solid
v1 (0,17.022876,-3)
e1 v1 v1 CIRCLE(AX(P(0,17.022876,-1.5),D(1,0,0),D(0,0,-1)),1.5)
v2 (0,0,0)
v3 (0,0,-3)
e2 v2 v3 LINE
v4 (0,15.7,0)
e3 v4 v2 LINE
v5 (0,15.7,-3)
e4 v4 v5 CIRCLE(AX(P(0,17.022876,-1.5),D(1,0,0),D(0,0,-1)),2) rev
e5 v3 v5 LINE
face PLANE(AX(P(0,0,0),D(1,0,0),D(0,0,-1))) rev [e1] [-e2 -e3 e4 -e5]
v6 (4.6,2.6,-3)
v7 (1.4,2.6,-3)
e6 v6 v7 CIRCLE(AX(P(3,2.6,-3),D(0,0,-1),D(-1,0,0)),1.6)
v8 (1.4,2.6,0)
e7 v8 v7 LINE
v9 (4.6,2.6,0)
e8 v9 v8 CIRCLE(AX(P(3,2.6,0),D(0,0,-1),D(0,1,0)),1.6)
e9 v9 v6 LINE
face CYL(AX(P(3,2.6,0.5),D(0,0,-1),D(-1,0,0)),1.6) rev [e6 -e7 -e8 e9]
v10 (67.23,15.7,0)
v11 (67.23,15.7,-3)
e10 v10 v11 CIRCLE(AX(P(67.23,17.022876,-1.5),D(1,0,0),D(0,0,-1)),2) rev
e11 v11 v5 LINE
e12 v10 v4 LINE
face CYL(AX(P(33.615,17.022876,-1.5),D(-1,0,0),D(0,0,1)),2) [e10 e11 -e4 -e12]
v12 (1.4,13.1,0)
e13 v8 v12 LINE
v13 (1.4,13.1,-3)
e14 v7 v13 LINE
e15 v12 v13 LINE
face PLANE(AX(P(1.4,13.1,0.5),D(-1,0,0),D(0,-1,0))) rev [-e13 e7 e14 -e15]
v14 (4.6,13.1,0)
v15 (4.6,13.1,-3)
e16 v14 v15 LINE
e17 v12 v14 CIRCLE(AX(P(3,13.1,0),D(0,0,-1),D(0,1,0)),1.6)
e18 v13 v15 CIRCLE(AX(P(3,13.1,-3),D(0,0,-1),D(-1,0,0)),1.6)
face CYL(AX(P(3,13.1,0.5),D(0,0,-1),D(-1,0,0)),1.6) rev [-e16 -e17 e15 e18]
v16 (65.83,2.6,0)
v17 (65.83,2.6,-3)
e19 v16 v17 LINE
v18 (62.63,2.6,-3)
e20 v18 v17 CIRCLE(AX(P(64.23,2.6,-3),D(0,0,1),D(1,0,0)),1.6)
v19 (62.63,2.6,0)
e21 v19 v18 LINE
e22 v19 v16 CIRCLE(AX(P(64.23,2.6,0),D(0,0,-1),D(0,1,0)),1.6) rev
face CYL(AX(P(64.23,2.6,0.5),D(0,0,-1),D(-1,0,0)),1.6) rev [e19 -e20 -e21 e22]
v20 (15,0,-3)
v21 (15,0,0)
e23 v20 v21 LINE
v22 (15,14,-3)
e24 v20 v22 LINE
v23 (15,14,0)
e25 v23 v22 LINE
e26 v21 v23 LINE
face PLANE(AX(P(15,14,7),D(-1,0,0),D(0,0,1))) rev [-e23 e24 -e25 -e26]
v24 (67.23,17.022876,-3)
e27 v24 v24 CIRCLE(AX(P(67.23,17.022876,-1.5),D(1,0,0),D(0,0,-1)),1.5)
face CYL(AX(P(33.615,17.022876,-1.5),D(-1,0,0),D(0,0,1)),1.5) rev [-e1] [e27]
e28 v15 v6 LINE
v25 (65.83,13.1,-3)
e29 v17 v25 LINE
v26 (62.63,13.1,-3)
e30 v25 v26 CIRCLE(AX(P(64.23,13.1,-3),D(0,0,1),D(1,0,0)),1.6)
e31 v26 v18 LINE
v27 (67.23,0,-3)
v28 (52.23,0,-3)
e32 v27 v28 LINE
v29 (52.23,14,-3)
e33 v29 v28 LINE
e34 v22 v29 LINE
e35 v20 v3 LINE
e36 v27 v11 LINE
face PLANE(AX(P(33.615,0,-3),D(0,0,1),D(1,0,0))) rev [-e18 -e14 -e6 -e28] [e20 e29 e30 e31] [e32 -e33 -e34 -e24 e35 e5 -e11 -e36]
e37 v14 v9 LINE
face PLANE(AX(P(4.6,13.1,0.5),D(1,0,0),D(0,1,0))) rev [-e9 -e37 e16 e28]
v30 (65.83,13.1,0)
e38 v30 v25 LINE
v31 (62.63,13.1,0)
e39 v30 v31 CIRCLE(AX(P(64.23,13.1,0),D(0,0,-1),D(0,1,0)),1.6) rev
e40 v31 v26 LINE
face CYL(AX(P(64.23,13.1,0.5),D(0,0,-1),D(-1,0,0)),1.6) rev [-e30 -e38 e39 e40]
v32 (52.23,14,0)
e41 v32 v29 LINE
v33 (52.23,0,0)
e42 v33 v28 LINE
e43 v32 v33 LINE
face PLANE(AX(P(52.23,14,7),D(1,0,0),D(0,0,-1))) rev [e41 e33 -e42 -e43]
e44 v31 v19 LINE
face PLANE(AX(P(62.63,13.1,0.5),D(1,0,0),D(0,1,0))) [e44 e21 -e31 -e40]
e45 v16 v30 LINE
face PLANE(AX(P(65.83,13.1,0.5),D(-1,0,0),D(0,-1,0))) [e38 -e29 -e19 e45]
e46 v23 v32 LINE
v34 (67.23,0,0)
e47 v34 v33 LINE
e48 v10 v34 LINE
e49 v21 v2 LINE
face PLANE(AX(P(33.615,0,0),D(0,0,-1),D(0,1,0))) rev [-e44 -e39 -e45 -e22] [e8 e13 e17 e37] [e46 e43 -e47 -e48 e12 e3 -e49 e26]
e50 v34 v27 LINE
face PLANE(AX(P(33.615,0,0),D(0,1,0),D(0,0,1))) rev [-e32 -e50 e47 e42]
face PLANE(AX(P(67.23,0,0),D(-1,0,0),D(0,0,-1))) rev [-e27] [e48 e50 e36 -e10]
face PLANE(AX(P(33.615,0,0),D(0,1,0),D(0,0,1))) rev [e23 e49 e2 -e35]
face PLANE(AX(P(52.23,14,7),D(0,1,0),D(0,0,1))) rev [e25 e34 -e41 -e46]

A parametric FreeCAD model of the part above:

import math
import FreeCAD as App
import Part
import Sketcher

V = App.Vector


def add_polygon(sketch, points):
    """Adds a closed chain of lines whose ends are joined by coincident constraints."""
    first, n = sketch.GeometryCount, len(points)
    for a, b in zip(points, points[1:] + points[:1]):
        sketch.addGeometry(Part.LineSegment(App.Vector(*a, 0), App.Vector(*b, 0)), False)
    for i in range(n):
        sketch.addConstraint(Sketcher.Constraint("Coincident", first + i, 2, first + (i + 1) % n, 1))

doc = App.newDocument("Part")
body = doc.addObject("PartDesign::Body", "Body")

# Sketch on YZ plane
sketch1 = body.newObject("Sketcher::SketchObject", "Sketch")
sketch1.AttachmentSupport = (doc.getObject("YZ_Plane"), [""])
sketch1.MapMode = "FlatFace"
sketch1.addGeometry(Part.ArcOfCircle(Part.Circle(V(17.022876, -1.5, 0), V(0, 0, 1), 2), math.radians(-131.409622), math.radians(131.409622)), False)
sketch1.addGeometry(Part.LineSegment(V(15.7, 0, 0), V(0, 0, 0)), False)
sketch1.addGeometry(Part.LineSegment(V(0, 0, 0), V(0, -3, 0)), False)
sketch1.addGeometry(Part.LineSegment(V(0, -3, 0), V(15.7, -3, 0)), False)
sketch1.addGeometry(Part.Circle(V(17.022876, -1.5, 0), V(0, 0, 1), 1.5), False)
sketch1.addConstraint(Sketcher.Constraint("Coincident", 0, 2, 1, 1))
sketch1.addConstraint(Sketcher.Constraint("Coincident", 1, 2, 2, 1))
sketch1.addConstraint(Sketcher.Constraint("Coincident", 2, 2, 3, 1))
sketch1.addConstraint(Sketcher.Constraint("Coincident", 3, 2, 0, 1))
sketch1.addConstraint(Sketcher.Constraint("Horizontal", 1))
sketch1.addConstraint(Sketcher.Constraint("Vertical", 2))
sketch1.addConstraint(Sketcher.Constraint("Horizontal", 3))
sketch1.addConstraint(Sketcher.Constraint("Coincident", 1, 2, -1, 1))
sketch1.addConstraint(Sketcher.Constraint("Coincident", 4, 3, 0, 3))
sketch1.addConstraint(Sketcher.Constraint("Vertical", 0, 2, 3, 2))
sketch1.addConstraint(Sketcher.Constraint("Diameter", 4, 3.0))
sketch1.addConstraint(Sketcher.Constraint("Radius", 0, 2.0))
sketch1.addConstraint(Sketcher.Constraint("DistanceY", 2, 2, 2, 1, 3.0))
sketch1.addConstraint(Sketcher.Constraint("DistanceX", 1, 2, 1, 1, 15.7))
pad1 = body.newObject("PartDesign::Pad", "Pad")
pad1.Profile = sketch1
pad1.Length = 33.615

# Sketch on XY plane
sketch2 = body.newObject("Sketcher::SketchObject", "Sketch001")
sketch2.AttachmentSupport = (doc.getObject("XY_Plane"), [""])
sketch2.MapMode = "FlatFace"
sketch2.AttachmentOffset = App.Placement(V(0, 0, -3), App.Rotation())
sketch2.addGeometry(Part.LineSegment(V(1.4, 2.6, 0), V(1.4, 13.1, 0)), False)
sketch2.addGeometry(Part.ArcOfCircle(Part.Circle(V(3, 13.1, 0), V(0, 0, 1), 1.6), math.radians(0), math.radians(180)), False)
sketch2.addGeometry(Part.LineSegment(V(4.6, 13.1, 0), V(4.6, 2.6, 0)), False)
sketch2.addGeometry(Part.ArcOfCircle(Part.Circle(V(3, 2.6, 0), V(0, 0, 1), 1.6), math.radians(180), math.radians(360)), False)
sketch2.addConstraint(Sketcher.Constraint("Tangent", 0, 2, 1, 2))
sketch2.addConstraint(Sketcher.Constraint("Tangent", 1, 1, 2, 1))
sketch2.addConstraint(Sketcher.Constraint("Tangent", 2, 2, 3, 2))
sketch2.addConstraint(Sketcher.Constraint("Tangent", 3, 1, 0, 1))
sketch2.addConstraint(Sketcher.Constraint("Vertical", 0))
sketch2.addConstraint(Sketcher.Constraint("Vertical", 2))
sketch2.addConstraint(Sketcher.Constraint("Radius", 1, 1.6))
sketch2.addConstraint(Sketcher.Constraint("DistanceY", 0, 1, 0, 2, 10.5))
sketch2.addConstraint(Sketcher.Constraint("DistanceX", -1, 1, 1, 3, 3.0))
sketch2.addConstraint(Sketcher.Constraint("DistanceY", -1, 1, 1, 3, 13.1))
pocket1 = body.newObject("PartDesign::Pocket", "Pocket")
pocket1.Profile = sketch2
pocket1.Type = "ThroughAll"
pocket1.Reversed = True
doc.recompute()

datumplane = body.newObject("PartDesign::Plane", "DatumPlane")
datumplane.AttachmentSupport = (doc.getObject("YZ_Plane"), [""])
datumplane.MapMode = "FlatFace"
datumplane.AttachmentOffset = App.Placement(V(0, 0, 33.615), App.Rotation())
mirrored = body.newObject("PartDesign::Mirrored", "Mirrored")
mirrored.Originals = [pad1, pocket1]
mirrored.MirrorPlane = (datumplane, [""])
body.Tip = mirrored

# Sketch on XY plane
sketch3 = body.newObject("Sketcher::SketchObject", "Sketch002")
sketch3.AttachmentSupport = (doc.getObject("XY_Plane"), [""])
sketch3.MapMode = "FlatFace"
sketch3.AttachmentOffset = App.Placement(V(0, 0, -3), App.Rotation())
add_polygon(sketch3, [(52.23, 14), (52.23, 0), (15, 0), (15, 14)])  # lines 0-3
sketch3.addConstraint(Sketcher.Constraint("Vertical", 0))
sketch3.addConstraint(Sketcher.Constraint("Horizontal", 1))
sketch3.addConstraint(Sketcher.Constraint("Vertical", 2))
sketch3.addConstraint(Sketcher.Constraint("Horizontal", 3))
sketch3.addConstraint(Sketcher.Constraint("PointOnObject", 0, 2, -1))
sketch3.addConstraint(Sketcher.Constraint("DistanceY", 0, 2, 0, 1, 14.0))
sketch3.addConstraint(Sketcher.Constraint("DistanceX", -1, 1, 1, 2, 15.0))
sketch3.addConstraint(Sketcher.Constraint("DistanceX", 1, 2, 1, 1, 37.23))
pocket2 = body.newObject("PartDesign::Pocket", "Pocket001")
pocket2.Profile = sketch3
pocket2.Length = 10
pocket2.Reversed = True

doc.recompute()
